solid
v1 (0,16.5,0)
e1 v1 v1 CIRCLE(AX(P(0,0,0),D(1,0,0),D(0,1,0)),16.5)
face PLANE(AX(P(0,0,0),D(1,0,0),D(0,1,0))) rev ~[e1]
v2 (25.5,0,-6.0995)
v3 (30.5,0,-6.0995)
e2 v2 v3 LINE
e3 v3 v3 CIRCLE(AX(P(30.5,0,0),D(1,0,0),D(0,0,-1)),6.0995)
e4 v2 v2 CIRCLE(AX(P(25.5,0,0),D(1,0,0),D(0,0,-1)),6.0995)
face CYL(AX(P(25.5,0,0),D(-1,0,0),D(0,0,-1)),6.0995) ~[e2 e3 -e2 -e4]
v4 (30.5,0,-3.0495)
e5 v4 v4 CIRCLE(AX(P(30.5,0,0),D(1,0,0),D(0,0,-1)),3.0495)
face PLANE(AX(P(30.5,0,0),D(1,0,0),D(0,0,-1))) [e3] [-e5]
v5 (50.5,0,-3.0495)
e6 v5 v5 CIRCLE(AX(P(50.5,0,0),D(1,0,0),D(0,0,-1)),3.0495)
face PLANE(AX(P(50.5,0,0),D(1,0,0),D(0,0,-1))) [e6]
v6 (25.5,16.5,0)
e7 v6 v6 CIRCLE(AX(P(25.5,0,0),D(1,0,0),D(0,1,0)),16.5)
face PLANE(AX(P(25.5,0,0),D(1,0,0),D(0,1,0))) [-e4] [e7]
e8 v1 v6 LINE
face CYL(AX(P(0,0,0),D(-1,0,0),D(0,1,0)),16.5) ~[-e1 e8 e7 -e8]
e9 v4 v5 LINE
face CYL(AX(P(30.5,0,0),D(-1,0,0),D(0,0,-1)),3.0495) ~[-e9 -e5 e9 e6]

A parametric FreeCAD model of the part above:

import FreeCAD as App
import Part
import Sketcher
from FreeCAD import Vector
Q = App.Units.Quantity

doc = App.newDocument("Part")
body = doc.addObject("PartDesign::Body", "Body")

# Sketch on YZ plane
sketch1 = body.newObject("Sketcher::SketchObject", "Sketch")
sketch1.AttachmentSupport = (doc.getObject("YZ_Plane"), [""])
sketch1.MapMode = "FlatFace"
sketch1.addGeometry(Part.Circle(Vector(0, 0, 0), Vector(0, 0, 1), 16), False)
sketch1.addConstraint([
    Sketcher.Constraint("Coincident", 0, 3, -1, 1),
    Sketcher.Constraint("Diameter", 0, Q("33 mm")),
])
pad1 = body.newObject("PartDesign::Pad", "Pad")
pad1.Profile = sketch1
pad1.Length = 25.5

# Sketch on YZ plane
sketch2 = body.newObject("Sketcher::SketchObject", "Sketch001")
sketch2.AttachmentSupport = (doc.getObject("YZ_Plane"), [""])
sketch2.MapMode = "FlatFace"
sketch2.AttachmentOffset = App.Placement(Vector(0, 0, 25.5), App.Rotation())
sketch2.addGeometry(Part.Circle(Vector(0, 0, 0), Vector(0, 0, 1), 6), False)
sketch2.addConstraint([
    Sketcher.Constraint("Coincident", 0, 3, -1, 1),
    Sketcher.Constraint("Diameter", 0, Q("12.199 mm")),
])
pad2 = body.newObject("PartDesign::Pad", "Pad001")
pad2.Profile = sketch2
pad2.Length = 5

# Sketch on YZ plane
sketch3 = body.newObject("Sketcher::SketchObject", "Sketch002")
sketch3.AttachmentSupport = (doc.getObject("YZ_Plane"), [""])
sketch3.MapMode = "FlatFace"
sketch3.AttachmentOffset = App.Placement(Vector(0, 0, 30.5), App.Rotation())
sketch3.addGeometry(Part.Circle(Vector(0, 0, 0), Vector(0, 0, 1), 3), False)
sketch3.addConstraint([
    Sketcher.Constraint("Coincident", 0, 3, -1, 1),
    Sketcher.Constraint("Diameter", 0, Q("6.099 mm")),
])
pad3 = body.newObject("PartDesign::Pad", "Pad002")
pad3.Profile = sketch3
pad3.Length = 20

doc.recompute()
